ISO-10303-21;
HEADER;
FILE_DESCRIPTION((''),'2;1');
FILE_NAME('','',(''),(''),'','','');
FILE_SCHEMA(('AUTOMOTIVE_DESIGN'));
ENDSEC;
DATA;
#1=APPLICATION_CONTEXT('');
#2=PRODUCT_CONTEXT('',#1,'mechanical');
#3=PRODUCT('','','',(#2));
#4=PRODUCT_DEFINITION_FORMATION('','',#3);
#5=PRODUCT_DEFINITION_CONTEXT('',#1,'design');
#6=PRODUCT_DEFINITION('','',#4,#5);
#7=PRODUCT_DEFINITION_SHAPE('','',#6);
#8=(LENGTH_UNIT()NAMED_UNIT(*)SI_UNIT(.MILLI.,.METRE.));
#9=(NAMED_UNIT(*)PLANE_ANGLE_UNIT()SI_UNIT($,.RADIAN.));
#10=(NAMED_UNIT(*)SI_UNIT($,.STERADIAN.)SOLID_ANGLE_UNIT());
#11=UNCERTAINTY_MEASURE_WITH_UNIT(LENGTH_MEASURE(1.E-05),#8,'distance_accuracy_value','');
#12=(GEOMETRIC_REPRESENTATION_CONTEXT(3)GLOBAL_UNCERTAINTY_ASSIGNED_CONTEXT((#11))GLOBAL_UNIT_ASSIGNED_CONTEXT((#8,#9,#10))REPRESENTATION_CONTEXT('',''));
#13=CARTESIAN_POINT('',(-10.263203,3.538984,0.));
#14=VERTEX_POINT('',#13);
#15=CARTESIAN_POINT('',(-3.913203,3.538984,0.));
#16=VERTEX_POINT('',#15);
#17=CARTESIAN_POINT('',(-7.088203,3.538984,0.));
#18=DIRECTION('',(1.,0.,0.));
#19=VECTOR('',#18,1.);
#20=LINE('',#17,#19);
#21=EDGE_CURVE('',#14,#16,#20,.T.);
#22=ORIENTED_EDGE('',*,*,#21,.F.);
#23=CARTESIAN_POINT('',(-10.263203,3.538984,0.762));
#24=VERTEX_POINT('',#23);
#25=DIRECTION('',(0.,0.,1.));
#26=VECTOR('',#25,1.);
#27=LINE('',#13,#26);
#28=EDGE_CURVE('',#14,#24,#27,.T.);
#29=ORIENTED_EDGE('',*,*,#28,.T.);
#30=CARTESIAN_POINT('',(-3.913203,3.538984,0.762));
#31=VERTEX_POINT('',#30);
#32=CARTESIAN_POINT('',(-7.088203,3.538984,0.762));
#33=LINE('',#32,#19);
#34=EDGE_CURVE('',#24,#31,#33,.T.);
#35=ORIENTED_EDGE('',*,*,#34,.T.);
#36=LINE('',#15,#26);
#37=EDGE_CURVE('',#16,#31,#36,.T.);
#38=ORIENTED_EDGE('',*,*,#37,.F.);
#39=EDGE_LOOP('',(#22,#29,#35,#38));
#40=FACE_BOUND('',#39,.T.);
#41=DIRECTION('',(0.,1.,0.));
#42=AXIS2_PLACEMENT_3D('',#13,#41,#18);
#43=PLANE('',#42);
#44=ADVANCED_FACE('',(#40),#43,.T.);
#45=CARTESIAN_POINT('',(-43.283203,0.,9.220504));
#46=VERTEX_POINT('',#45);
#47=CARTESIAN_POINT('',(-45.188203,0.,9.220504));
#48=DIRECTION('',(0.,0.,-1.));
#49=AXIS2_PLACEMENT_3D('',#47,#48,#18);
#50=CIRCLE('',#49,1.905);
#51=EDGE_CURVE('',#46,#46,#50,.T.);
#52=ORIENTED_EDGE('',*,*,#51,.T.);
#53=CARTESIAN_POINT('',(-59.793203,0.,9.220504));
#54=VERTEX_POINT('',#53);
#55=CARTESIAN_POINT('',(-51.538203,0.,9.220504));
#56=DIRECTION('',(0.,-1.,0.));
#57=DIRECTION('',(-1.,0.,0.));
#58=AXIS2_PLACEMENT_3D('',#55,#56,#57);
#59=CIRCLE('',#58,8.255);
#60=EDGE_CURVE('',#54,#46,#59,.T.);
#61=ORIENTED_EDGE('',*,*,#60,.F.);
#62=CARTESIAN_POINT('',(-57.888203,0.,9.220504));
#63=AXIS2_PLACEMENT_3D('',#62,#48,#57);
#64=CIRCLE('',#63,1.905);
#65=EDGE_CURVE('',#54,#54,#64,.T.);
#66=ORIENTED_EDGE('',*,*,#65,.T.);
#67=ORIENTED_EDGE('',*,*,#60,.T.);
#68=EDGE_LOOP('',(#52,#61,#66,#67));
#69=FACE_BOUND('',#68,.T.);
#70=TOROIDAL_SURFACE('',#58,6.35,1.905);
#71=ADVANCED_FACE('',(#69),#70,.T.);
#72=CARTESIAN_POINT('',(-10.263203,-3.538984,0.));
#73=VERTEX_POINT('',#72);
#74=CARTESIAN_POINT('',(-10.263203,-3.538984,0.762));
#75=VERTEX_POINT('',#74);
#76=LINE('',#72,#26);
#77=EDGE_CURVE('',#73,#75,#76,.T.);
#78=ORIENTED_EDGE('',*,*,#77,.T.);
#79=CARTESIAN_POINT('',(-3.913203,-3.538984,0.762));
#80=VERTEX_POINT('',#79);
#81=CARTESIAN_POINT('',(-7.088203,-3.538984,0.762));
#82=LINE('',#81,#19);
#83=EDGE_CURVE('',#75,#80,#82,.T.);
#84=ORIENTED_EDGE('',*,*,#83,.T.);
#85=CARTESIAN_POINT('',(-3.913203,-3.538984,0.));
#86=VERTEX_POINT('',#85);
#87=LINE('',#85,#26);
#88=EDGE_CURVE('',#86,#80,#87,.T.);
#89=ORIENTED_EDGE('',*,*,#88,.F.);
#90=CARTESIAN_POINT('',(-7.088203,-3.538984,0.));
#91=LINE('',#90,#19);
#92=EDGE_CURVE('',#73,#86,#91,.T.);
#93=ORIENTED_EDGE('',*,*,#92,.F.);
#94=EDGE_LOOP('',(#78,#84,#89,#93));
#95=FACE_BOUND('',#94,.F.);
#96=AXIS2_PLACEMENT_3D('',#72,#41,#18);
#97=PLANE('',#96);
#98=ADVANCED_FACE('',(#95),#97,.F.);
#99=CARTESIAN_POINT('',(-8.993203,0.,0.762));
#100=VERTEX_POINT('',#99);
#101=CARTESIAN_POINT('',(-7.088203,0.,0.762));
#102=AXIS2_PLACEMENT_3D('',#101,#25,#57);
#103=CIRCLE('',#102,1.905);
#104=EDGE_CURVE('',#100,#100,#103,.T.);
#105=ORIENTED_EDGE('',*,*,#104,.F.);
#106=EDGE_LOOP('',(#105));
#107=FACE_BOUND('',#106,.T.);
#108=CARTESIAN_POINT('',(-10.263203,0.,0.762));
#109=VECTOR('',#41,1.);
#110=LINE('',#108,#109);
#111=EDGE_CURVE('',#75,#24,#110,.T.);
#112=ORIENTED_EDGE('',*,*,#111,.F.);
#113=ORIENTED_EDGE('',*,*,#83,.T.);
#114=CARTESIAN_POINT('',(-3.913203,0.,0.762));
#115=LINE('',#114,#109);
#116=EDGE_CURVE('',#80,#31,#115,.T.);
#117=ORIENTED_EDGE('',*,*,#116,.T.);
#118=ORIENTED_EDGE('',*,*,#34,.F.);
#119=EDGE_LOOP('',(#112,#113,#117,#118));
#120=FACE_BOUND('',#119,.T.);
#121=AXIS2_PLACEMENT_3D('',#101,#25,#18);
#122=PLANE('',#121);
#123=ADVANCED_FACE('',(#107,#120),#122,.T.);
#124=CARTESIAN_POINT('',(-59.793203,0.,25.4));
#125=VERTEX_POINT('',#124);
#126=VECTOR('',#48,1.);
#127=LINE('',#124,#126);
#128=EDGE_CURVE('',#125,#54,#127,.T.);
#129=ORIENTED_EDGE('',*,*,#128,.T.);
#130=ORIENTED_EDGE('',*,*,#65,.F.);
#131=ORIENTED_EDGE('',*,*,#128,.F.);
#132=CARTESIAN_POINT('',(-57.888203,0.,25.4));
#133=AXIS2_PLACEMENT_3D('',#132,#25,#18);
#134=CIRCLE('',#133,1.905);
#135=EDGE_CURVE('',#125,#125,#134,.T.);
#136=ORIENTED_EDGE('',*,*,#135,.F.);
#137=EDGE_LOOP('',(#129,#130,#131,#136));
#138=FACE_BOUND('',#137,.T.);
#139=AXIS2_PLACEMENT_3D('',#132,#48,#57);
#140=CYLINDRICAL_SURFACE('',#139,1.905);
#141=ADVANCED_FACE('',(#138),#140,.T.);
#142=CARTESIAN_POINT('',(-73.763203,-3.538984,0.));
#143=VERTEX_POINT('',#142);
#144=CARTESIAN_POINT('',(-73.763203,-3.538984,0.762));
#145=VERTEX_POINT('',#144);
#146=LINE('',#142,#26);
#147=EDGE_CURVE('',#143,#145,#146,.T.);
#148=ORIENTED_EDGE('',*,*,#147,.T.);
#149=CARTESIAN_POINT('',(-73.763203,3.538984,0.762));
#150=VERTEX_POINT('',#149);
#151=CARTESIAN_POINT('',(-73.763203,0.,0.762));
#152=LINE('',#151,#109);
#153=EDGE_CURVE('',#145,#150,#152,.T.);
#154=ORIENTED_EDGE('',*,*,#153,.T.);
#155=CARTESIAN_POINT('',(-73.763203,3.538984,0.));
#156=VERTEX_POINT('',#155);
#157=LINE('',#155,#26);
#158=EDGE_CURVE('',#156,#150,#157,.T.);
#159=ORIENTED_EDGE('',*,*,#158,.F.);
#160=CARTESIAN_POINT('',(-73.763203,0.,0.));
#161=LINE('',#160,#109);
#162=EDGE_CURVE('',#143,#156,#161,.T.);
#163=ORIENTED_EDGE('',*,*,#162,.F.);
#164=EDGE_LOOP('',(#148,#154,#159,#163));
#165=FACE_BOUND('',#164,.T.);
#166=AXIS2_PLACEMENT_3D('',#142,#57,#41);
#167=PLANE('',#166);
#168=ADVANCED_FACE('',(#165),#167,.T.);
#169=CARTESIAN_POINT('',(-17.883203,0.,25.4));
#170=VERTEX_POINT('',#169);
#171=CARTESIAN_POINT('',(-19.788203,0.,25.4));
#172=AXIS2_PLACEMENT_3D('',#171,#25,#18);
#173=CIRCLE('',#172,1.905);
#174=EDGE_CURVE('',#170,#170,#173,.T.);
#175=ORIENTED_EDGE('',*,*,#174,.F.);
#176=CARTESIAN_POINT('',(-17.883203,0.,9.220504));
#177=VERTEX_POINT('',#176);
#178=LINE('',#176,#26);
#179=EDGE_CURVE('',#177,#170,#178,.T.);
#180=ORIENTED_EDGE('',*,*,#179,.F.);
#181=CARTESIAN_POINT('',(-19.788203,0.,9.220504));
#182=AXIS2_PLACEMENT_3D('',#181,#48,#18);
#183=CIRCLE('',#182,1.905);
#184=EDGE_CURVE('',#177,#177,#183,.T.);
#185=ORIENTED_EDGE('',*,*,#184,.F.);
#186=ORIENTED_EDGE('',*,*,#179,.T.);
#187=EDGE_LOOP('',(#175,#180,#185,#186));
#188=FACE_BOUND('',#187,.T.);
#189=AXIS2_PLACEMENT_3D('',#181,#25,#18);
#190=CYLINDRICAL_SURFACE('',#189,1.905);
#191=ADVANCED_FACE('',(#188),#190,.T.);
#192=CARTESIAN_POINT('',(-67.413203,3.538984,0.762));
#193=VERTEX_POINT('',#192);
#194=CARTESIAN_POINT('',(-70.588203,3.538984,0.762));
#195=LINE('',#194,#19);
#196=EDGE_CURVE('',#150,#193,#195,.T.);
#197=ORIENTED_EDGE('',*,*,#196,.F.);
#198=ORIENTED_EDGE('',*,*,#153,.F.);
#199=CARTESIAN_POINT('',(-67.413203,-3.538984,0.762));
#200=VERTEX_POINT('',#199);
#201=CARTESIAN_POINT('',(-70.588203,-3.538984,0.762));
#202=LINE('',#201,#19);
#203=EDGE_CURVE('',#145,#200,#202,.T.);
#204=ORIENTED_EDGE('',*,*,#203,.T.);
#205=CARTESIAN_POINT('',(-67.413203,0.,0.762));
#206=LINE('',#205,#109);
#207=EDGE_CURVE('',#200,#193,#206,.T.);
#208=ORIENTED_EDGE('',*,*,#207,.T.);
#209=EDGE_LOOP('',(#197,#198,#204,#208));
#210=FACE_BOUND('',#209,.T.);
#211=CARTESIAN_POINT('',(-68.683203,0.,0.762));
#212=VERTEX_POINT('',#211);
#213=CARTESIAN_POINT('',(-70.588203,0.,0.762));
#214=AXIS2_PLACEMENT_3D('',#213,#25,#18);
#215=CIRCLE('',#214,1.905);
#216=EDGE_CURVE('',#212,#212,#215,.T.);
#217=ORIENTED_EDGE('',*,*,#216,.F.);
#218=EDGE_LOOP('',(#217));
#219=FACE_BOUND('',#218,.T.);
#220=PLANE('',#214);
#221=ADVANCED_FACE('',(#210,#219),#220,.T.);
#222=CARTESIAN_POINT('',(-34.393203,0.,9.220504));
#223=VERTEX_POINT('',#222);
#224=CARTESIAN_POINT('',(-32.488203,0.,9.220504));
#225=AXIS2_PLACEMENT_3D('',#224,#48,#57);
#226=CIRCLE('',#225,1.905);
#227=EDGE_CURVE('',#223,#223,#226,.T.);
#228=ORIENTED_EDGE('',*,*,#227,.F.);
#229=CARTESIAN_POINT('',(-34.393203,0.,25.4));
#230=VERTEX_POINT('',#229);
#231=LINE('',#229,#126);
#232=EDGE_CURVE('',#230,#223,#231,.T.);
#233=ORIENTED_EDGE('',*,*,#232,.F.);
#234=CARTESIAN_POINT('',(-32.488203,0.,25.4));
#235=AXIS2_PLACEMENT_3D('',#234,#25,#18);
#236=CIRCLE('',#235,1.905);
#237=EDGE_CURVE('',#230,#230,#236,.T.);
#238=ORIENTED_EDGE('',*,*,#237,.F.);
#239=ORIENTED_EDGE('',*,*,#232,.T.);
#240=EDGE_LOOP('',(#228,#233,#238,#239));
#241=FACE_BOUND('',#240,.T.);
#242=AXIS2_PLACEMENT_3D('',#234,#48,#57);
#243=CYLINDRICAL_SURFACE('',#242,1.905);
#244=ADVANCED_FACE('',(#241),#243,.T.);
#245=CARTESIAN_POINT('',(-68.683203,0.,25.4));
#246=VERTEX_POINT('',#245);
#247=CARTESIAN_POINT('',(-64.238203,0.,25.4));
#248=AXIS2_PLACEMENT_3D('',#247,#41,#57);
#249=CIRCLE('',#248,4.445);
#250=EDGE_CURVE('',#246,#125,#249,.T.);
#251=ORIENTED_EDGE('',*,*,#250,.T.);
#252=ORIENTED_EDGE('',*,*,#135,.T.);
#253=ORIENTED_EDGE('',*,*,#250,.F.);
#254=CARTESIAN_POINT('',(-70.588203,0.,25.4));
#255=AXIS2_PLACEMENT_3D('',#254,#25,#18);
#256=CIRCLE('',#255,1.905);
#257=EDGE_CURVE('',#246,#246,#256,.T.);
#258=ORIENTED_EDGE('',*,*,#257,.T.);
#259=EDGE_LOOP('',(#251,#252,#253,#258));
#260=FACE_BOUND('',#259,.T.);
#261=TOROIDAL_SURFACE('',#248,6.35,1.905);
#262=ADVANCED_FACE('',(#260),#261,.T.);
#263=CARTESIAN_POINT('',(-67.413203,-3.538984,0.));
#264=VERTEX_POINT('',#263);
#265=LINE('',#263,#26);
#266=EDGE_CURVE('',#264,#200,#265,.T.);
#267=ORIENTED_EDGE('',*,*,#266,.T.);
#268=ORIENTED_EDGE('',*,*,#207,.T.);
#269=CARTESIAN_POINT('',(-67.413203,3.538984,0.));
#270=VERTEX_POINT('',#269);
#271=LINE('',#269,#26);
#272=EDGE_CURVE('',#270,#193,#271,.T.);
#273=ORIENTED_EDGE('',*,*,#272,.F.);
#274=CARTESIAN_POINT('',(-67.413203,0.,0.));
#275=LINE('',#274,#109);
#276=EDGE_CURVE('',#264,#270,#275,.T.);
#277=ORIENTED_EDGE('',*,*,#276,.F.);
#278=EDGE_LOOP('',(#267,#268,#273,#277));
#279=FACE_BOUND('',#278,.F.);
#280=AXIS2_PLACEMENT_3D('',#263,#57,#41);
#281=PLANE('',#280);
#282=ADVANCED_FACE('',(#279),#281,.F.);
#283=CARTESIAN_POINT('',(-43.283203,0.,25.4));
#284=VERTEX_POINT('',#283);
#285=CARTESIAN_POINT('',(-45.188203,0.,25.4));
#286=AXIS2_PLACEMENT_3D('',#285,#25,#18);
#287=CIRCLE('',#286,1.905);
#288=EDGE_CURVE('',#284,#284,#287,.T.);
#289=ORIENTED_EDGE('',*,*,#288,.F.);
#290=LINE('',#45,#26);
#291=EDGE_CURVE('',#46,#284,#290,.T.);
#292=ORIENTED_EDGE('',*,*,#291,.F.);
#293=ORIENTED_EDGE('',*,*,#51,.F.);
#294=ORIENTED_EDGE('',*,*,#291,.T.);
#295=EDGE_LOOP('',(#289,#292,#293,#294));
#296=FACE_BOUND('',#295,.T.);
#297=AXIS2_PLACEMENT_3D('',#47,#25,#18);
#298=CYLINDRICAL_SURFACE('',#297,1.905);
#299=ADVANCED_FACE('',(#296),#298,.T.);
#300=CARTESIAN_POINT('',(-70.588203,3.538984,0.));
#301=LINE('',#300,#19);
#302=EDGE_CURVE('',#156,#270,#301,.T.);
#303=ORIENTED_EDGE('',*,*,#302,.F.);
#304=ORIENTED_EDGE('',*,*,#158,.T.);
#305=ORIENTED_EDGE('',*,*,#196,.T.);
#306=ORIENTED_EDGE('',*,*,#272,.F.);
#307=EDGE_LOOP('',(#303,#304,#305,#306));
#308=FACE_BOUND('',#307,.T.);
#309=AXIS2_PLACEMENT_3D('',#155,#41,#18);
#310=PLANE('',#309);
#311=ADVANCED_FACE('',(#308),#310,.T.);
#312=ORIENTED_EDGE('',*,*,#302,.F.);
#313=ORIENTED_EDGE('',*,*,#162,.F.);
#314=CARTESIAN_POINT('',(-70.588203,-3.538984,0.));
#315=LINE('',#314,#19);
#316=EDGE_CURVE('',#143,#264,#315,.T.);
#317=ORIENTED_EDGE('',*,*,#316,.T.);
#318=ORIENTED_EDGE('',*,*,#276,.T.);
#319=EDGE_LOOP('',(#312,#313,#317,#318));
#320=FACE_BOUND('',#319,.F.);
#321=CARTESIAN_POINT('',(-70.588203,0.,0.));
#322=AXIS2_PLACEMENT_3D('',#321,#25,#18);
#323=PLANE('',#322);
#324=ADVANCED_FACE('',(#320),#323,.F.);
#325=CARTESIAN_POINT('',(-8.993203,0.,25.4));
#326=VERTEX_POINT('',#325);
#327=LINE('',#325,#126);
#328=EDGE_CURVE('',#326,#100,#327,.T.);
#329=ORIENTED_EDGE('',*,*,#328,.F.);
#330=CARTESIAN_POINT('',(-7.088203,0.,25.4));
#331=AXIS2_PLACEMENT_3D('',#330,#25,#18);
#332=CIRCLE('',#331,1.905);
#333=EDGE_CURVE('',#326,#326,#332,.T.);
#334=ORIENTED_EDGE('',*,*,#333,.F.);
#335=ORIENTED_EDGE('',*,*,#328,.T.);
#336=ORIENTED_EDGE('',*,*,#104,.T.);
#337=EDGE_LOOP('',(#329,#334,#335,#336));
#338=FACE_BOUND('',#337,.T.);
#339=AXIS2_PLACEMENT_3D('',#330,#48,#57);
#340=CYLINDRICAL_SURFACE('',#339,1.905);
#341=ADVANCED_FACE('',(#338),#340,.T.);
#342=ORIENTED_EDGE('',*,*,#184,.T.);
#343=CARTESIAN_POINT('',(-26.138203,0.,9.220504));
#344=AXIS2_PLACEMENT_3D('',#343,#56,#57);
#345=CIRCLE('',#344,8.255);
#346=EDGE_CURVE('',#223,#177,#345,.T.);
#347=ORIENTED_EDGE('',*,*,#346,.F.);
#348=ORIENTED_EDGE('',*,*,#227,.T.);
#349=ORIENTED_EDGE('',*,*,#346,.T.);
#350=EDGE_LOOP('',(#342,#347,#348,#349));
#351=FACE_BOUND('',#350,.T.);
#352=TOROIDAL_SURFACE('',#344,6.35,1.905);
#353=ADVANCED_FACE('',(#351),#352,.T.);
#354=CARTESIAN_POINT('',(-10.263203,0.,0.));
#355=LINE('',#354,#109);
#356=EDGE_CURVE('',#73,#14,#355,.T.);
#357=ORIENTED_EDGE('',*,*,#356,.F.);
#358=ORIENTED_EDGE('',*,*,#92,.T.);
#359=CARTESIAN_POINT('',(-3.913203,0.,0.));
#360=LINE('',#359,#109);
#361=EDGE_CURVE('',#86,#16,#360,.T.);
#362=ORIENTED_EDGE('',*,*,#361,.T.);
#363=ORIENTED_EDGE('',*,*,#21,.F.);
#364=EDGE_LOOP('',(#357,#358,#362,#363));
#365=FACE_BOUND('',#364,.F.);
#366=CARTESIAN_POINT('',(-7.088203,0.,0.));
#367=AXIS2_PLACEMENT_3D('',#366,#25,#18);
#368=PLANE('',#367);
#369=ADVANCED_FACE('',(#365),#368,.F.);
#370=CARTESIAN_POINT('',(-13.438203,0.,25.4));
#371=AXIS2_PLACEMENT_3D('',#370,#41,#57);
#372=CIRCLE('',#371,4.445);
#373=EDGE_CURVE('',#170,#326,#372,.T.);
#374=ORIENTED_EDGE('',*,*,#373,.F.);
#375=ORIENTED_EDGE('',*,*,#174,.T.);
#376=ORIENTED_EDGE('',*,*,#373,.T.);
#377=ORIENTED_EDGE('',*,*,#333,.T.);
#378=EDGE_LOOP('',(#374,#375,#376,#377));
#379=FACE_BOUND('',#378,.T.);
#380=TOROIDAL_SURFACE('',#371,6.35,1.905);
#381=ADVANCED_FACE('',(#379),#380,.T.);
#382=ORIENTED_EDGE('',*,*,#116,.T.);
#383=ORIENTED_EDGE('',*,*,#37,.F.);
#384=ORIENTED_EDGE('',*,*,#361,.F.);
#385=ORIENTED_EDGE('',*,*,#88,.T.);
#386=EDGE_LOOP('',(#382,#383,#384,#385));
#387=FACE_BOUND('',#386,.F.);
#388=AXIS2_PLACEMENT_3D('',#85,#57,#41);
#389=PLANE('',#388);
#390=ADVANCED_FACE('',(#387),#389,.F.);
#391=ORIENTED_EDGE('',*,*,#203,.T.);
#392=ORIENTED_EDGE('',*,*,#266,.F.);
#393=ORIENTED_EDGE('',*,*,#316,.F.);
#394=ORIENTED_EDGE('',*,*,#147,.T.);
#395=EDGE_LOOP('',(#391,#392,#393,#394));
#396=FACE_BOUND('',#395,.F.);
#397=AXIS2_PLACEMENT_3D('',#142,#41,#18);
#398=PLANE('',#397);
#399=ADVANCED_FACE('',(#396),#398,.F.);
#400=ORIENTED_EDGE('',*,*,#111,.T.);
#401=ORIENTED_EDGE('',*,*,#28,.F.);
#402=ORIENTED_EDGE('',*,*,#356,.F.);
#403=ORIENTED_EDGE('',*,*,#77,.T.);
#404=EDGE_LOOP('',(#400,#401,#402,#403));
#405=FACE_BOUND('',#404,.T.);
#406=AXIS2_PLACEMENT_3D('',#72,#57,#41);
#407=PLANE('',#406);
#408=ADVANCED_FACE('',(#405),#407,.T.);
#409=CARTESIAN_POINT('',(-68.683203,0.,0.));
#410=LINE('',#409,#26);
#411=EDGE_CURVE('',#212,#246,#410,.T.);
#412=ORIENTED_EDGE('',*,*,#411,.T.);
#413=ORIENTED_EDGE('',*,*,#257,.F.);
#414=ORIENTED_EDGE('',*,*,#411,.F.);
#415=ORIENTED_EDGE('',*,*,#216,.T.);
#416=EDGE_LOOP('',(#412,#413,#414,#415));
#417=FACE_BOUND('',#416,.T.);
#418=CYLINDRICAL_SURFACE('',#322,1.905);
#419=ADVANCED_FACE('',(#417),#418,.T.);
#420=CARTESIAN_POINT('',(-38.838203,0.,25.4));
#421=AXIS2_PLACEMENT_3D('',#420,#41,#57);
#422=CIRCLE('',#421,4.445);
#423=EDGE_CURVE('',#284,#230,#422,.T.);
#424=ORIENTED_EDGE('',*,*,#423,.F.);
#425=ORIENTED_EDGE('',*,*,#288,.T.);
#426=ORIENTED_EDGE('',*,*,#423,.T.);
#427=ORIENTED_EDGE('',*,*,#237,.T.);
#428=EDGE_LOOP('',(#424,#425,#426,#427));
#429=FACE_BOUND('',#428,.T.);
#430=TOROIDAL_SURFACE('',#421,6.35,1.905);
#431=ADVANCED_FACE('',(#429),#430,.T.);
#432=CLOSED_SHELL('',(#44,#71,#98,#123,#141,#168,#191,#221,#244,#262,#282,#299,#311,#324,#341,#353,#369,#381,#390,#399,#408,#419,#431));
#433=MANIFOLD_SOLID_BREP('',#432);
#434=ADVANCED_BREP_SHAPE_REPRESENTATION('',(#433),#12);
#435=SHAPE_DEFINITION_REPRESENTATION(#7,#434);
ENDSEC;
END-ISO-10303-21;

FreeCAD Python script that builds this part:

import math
import FreeCAD as App
import Part
import Sketcher
from FreeCAD import Vector
Q = App.Units.Quantity


def add_polygon(sketch, points):
    """Adds a closed chain of lines whose ends are joined by coincident constraints."""
    first, n = sketch.GeometryCount, len(points)
    for a, b in zip(points, points[1:] + points[:1]):
        sketch.addGeometry(Part.LineSegment(App.Vector(*a, 0), App.Vector(*b, 0)), False)
    for i in range(n):
        sketch.addConstraint(Sketcher.Constraint("Coincident", first + i, 2, first + (i + 1) % n, 1))

doc = App.newDocument("Part")
body = doc.addObject("PartDesign::Body", "Body")

sketch1 = body.newObject("Sketcher::SketchObject", "Sketch")
sketch1.AttachmentSupport = (doc.getObject("XY_Plane"), [""])
sketch1.MapMode = "FlatFace"
sketch1.addGeometry(Part.Circle(Vector(-70.6, 0, 0), Vector(0, 0, 1), 1.9), False)
sketch1.addConstraint([
    Sketcher.Constraint("PointOnObject", 0, 3, -1),
    Sketcher.Constraint("Diameter", 0, Q("0.15 in")),
    Sketcher.Constraint("DistanceX", 0, 3, -1, 1, 70.588203),
])

sketch2 = body.newObject("Sketcher::SketchObject", "Sketch001")
sketch2.AttachmentSupport = (doc.getObject("XZ_Plane"), [""])
sketch2.MapMode = "FlatFace"
sketch2.addGeometry([
    Part.LineSegment(Vector(-71, 0, 0), Vector(-71, 25, 0)),
    Part.ArcOfCircle(Part.Circle(Vector(-64, 25, 0), Vector(0, 0, 1), 6), math.radians(0), math.radians(180)),
    Part.LineSegment(Vector(-58, 25, 0), Vector(-58, 9, 0)),
    Part.ArcOfCircle(Part.Circle(Vector(-52, 9, 0), Vector(0, 0, 1), 6), math.radians(180), math.radians(360)),
    Part.LineSegment(Vector(-45, 9, 0), Vector(-45, 25, 0)),
    Part.ArcOfCircle(Part.Circle(Vector(-39, 25, 0), Vector(0, 0, 1), 6), math.radians(0), math.radians(180)),
    Part.LineSegment(Vector(-32, 25, 0), Vector(-32, 9, 0)),
    Part.ArcOfCircle(Part.Circle(Vector(-26, 9, 0), Vector(0, 0, 1), 6), math.radians(180), math.radians(360)),
    Part.LineSegment(Vector(-20, 9, 0), Vector(-20, 25, 0)),
    Part.ArcOfCircle(Part.Circle(Vector(-13, 25, 0), Vector(0, 0, 1), 6), math.radians(0), math.radians(180)),
    Part.LineSegment(Vector(-7, 25, 0), Vector(-7, 0, 0)),
], False)
sketch2.addConstraint([
    Sketcher.Constraint("Tangent", 0, 2, 1, 2),
    Sketcher.Constraint("Tangent", 1, 1, 2, 1),
    Sketcher.Constraint("Tangent", 2, 2, 3, 1),
    Sketcher.Constraint("Tangent", 3, 2, 4, 1),
    Sketcher.Constraint("Tangent", 4, 2, 5, 2),
    Sketcher.Constraint("Tangent", 5, 1, 6, 1),
    Sketcher.Constraint("Tangent", 6, 2, 7, 1),
    Sketcher.Constraint("Tangent", 7, 2, 8, 1),
    Sketcher.Constraint("Tangent", 8, 2, 9, 2),
    Sketcher.Constraint("Tangent", 9, 1, 10, 1),
    Sketcher.Constraint("Vertical", 0),
    Sketcher.Constraint("Vertical", 2),
    Sketcher.Constraint("Vertical", 4),
    Sketcher.Constraint("Vertical", 6),
    Sketcher.Constraint("Vertical", 8),
    Sketcher.Constraint("Vertical", 10),
    Sketcher.Constraint("Equal", 1, 3),
    Sketcher.Constraint("Equal", 3, 5),
    Sketcher.Constraint("Equal", 5, 7),
    Sketcher.Constraint("Equal", 7, 9),
    Sketcher.Constraint("PointOnObject", 0, 1, -1),
    Sketcher.Constraint("PointOnObject", 10, 2, -1),
    Sketcher.Constraint("Horizontal", 1, 3, 5, 3),
    Sketcher.Constraint("Horizontal", 3, 3, 7, 3),
    Sketcher.Constraint("Horizontal", 5, 3, 9, 3),
    Sketcher.Constraint("DistanceY", 0, 1, 0, 2, Q("1 in")),
    Sketcher.Constraint("Radius", 1, Q("0.25 in")),
    Sketcher.Constraint("DistanceY", 2, 2, 2, 1, 16.179496),
    Sketcher.Constraint("DistanceX", 1, 3, -1, 1, 64.238203),
])
doc.recompute()

additivepipe = body.newObject("PartDesign::AdditivePipe", "AdditivePipe")
additivepipe.Profile = sketch1
additivepipe.Spine = (sketch2, ["Edge1", "Edge2", "Edge3", "Edge4", "Edge5", "Edge6", "Edge7", "Edge8", "Edge9", "Edge10", "Edge11"])

sketch3 = body.newObject("Sketcher::SketchObject", "Sketch002")
sketch3.AttachmentSupport = (doc.getObject("XY_Plane"), [""])
sketch3.MapMode = "FlatFace"
add_polygon(sketch3, [(-73.8, 3.5), (-73.8, -3.5), (-67.4, -3.5), (-67.4, 3.5)])
sketch3.addGeometry(Part.Circle(Vector(-70.6, 0, 0), Vector(0, 0, 1), 1.9), False)
add_polygon(sketch3, [(-10.3, 3.5), (-10.3, -3.5), (-3.9, -3.5), (-3.9, 3.5)])
sketch3.addGeometry(Part.Circle(Vector(-7.1, 0, 0), Vector(0, 0, 1), 1.9), False)
sketch3.addConstraint([
    Sketcher.Constraint("Vertical", 0),
    Sketcher.Constraint("Horizontal", 1),
    Sketcher.Constraint("Vertical", 2),
    Sketcher.Constraint("Horizontal", 3),
    Sketcher.Constraint("Vertical", 5),
    Sketcher.Constraint("Horizontal", 6),
    Sketcher.Constraint("Vertical", 7),
    Sketcher.Constraint("Horizontal", 8),
    Sketcher.Constraint("Equal", 4, 9),
    Sketcher.Constraint("PointOnObject", 4, 3, -1),
    Sketcher.Constraint("PointOnObject", 9, 3, -1),
    Sketcher.Constraint("Horizontal", 1, 2, 5, 2),
    Sketcher.Constraint("Horizontal", 3, 2, 7, 2),
    Sketcher.Constraint("Equal", 3, 6),
    Sketcher.Constraint("Diameter", 4, Q("0.15 in")),
    Sketcher.Constraint("DistanceX", 1, 1, 1, 2, Q("0.25 in")),
    Sketcher.Constraint("DistanceX", 4, 3, 9, 3, Q("2.5 in")),
    Sketcher.Constraint("DistanceX", 0, 2, 5, 2, Q("2.5 in")),
    Sketcher.Constraint("DistanceX", 0, 2, 4, 3, Q("0.125 in")),
    Sketcher.Constraint("DistanceY", 0, 2, 0, 1, 7.077968),
    Sketcher.Constraint("DistanceX", 4, 3, -1, 1, 70.588203),
    Sketcher.Constraint("DistanceY", 0, 2, -1, 1, 3.538984),
])
pad1 = body.newObject("PartDesign::Pad", "Pad")
pad1.Profile = sketch3
pad1.Length = Q("0.03 in")

doc.recompute()
